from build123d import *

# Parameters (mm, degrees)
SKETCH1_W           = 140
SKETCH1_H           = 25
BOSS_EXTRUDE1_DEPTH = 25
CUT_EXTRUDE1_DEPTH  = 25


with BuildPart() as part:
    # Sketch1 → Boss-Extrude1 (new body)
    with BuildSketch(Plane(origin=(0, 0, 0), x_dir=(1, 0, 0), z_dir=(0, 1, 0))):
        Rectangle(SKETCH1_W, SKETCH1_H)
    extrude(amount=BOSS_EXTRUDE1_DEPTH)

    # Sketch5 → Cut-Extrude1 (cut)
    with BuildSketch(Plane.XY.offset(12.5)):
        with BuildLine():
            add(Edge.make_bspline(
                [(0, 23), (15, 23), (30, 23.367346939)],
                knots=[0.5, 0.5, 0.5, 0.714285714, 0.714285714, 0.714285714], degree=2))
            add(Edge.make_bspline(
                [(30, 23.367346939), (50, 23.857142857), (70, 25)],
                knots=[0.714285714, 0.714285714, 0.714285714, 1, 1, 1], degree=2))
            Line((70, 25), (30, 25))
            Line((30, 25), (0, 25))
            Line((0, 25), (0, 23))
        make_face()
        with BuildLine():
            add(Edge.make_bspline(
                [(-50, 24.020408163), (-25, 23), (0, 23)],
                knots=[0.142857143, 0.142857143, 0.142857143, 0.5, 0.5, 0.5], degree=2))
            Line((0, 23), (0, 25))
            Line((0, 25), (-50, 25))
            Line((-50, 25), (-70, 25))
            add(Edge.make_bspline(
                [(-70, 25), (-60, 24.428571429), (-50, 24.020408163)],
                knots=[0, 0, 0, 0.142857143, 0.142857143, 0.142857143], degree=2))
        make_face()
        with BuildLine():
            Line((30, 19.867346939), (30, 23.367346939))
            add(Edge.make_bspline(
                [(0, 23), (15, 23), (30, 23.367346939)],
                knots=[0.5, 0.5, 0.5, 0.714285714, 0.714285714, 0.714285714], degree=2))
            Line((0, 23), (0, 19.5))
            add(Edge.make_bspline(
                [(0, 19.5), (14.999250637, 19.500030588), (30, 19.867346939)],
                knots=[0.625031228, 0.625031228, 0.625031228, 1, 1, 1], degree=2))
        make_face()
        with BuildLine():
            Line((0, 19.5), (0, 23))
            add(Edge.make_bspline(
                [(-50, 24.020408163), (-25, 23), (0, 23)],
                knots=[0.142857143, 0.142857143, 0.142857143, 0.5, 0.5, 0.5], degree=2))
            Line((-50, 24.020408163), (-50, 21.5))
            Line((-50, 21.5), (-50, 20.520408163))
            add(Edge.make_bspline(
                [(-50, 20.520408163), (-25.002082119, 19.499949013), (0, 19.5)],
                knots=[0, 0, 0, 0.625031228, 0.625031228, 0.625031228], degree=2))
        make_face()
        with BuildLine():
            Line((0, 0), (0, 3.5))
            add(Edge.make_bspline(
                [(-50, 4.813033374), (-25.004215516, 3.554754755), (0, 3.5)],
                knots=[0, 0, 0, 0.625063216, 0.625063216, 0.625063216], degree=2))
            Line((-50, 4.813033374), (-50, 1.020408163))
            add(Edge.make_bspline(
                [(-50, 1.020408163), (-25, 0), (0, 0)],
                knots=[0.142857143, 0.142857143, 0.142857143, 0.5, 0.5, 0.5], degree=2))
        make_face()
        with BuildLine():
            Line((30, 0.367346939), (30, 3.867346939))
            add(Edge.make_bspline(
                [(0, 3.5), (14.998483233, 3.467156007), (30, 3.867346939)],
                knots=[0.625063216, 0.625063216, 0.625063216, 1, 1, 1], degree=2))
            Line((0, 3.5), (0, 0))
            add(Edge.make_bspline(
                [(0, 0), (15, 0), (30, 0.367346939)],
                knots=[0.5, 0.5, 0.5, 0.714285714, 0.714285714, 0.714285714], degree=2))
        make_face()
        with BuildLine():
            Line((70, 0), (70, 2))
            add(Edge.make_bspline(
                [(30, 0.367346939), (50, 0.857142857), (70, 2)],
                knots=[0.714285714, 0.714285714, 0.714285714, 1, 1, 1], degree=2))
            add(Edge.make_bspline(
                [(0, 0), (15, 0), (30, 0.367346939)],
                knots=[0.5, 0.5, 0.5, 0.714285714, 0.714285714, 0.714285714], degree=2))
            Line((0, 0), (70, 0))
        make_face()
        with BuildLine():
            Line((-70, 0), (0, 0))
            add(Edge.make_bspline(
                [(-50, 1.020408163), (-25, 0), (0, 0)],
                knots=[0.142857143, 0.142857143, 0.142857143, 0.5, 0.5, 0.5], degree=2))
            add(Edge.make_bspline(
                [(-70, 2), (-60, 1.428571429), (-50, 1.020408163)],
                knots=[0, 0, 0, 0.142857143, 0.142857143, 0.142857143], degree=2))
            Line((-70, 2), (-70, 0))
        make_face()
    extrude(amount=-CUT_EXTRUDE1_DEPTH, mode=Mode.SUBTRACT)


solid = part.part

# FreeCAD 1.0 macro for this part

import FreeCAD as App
import Part
import Sketcher


def add_polygon(sketch, points):
    """Adds a closed chain of lines whose ends are joined by coincident constraints."""
    first, n = sketch.GeometryCount, len(points)
    for a, b in zip(points, points[1:] + points[:1]):
        sketch.addGeometry(Part.LineSegment(App.Vector(*a, 0), App.Vector(*b, 0)), False)
    for i in range(n):
        sketch.addConstraint(Sketcher.Constraint("Coincident", first + i, 2, first + (i + 1) % n, 1))

doc = App.newDocument("Part")
body = doc.addObject("PartDesign::Body", "Body")

# Sketch on XZ plane
sketch1 = body.newObject("Sketcher::SketchObject", "Sketch")
sketch1.AttachmentSupport = (doc.getObject("XZ_Plane"), [""])
sketch1.MapMode = "FlatFace"
add_polygon(sketch1, [(-70, -12), (-70, 12), (70, 12), (70, -12)])  # lines 0-3
sketch1.addConstraint([
    Sketcher.Constraint("Vertical", 0),
    Sketcher.Constraint("Horizontal", 1),
    Sketcher.Constraint("Vertical", 2),
    Sketcher.Constraint("Horizontal", 3),
    Sketcher.Constraint("Symmetric", 0, 2, 2, 2, -1, 1),
    Sketcher.Constraint("DistanceX", 1, 1, 1, 2, 140.0),
    Sketcher.Constraint("DistanceY", 0, 1, 0, 2, 25.0),
])
pad1 = body.newObject("PartDesign::Pad", "Pad")
pad1.Profile = sketch1
pad1.Length = 25
pad1.Reversed = True

# Sketch on XY plane
sketch2 = body.newObject("Sketcher::SketchObject", "Sketch001")
sketch2.AttachmentSupport = (doc.getObject("XY_Plane"), [""])
sketch2.MapMode = "FlatFace"
sketch2.AttachmentOffset = App.Placement(App.Vector(0, 0, 12.5), App.Rotation())
sketch2.addGeometry([
    Part.BSplineCurve([App.Vector(30, 23.367347, 0), App.Vector(50, 23.857143, 0), App.Vector(70, 25, 0)], [3, 3], [0.714285714, 1], False, 2, [1, 1, 1], False),  # 0
    Part.LineSegment(App.Vector(70, 25, 0), App.Vector(-70, 25, 0)),  # 1
    Part.BSplineCurve([App.Vector(-70, 25, 0), App.Vector(-60, 24.428571, 0), App.Vector(-50, 24.020408, 0)], [3, 3], [0, 0.142857143], False, 2, [1, 1, 1], False),  # 2
    Part.LineSegment(App.Vector(-50, 24.020408, 0), App.Vector(-50, 20.520408, 0)),  # 3
    Part.BSplineCurve([App.Vector(-50, 20.520408, 0), App.Vector(-25.002082, 19.499949, 0), App.Vector(0, 19.5, 0)], [3, 3], [0, 0.625031228], False, 2, [1, 1, 1], False),  # 4
    Part.BSplineCurve([App.Vector(0, 19.5, 0), App.Vector(14.999251, 19.500031, 0), App.Vector(30, 19.867347, 0)], [3, 3], [0.625031228, 1], False, 2, [1, 1, 1], False),  # 5
    Part.LineSegment(App.Vector(30, 19.867347, 0), App.Vector(30, 23.367347, 0)),  # 6
    Part.BSplineCurve([App.Vector(-50, 4.813033, 0), App.Vector(-25.004216, 3.554755, 0), App.Vector(0, 3.5, 0)], [3, 3], [0, 0.625063216], False, 2, [1, 1, 1], False),  # 7
    Part.LineSegment(App.Vector(-50, 4.813033, 0), App.Vector(-50, 1.020408, 0)),  # 8
    Part.BSplineCurve([App.Vector(-70, 2, 0), App.Vector(-60, 1.428571, 0), App.Vector(-50, 1.020408, 0)], [3, 3], [0, 0.142857143], False, 2, [1, 1, 1], False),  # 9
    Part.LineSegment(App.Vector(-70, 2, 0), App.Vector(-70, 0, 0)),  # 10
    Part.LineSegment(App.Vector(-70, 0, 0), App.Vector(70, 0, 0)),  # 11
    Part.LineSegment(App.Vector(70, 0, 0), App.Vector(70, 2, 0)),  # 12
    Part.BSplineCurve([App.Vector(30, 0.367347, 0), App.Vector(50, 0.857143, 0), App.Vector(70, 2, 0)], [3, 3], [0.714285714, 1], False, 2, [1, 1, 1], False),  # 13
    Part.LineSegment(App.Vector(30, 0.367347, 0), App.Vector(30, 3.867347, 0)),  # 14
    Part.BSplineCurve([App.Vector(0, 3.5, 0), App.Vector(14.998483, 3.467156, 0), App.Vector(30, 3.867347, 0)], [3, 3], [0.625063216, 1], False, 2, [1, 1, 1], False),  # 15
], False)
sketch2.addConstraint([
    Sketcher.Constraint("Block", 0),
    Sketcher.Constraint("Block", 2),
    Sketcher.Constraint("Block", 4),
    Sketcher.Constraint("Block", 5),
    Sketcher.Constraint("Block", 7),
    Sketcher.Constraint("Block", 9),
    Sketcher.Constraint("Block", 13),
    Sketcher.Constraint("Block", 15),
    Sketcher.Constraint("Coincident", 0, 2, 1, 1),
    Sketcher.Constraint("Coincident", 1, 2, 2, 1),
    Sketcher.Constraint("Coincident", 2, 2, 3, 1),
    Sketcher.Constraint("Coincident", 3, 2, 4, 1),
    Sketcher.Constraint("Coincident", 5, 2, 6, 1),
    Sketcher.Constraint("Coincident", 6, 2, 0, 1),
    Sketcher.Constraint("Coincident", 7, 1, 8, 1),
    Sketcher.Constraint("Coincident", 8, 2, 9, 2),
    Sketcher.Constraint("Coincident", 9, 1, 10, 1),
    Sketcher.Constraint("Coincident", 10, 2, 11, 1),
    Sketcher.Constraint("Coincident", 11, 2, 12, 1),
    Sketcher.Constraint("Coincident", 12, 2, 13, 2),
    Sketcher.Constraint("Coincident", 13, 1, 14, 1),
    Sketcher.Constraint("Coincident", 14, 2, 15, 2),
    Sketcher.Constraint("Vertical", 10),
    Sketcher.Constraint("Horizontal", 11),
    Sketcher.Constraint("Vertical", 12),
    Sketcher.Constraint("PointOnObject", 10, 2, -1),
])
pocket1 = body.newObject("PartDesign::Pocket", "Pocket")
pocket1.Profile = sketch2
pocket1.Length = 25

doc.recompute()
